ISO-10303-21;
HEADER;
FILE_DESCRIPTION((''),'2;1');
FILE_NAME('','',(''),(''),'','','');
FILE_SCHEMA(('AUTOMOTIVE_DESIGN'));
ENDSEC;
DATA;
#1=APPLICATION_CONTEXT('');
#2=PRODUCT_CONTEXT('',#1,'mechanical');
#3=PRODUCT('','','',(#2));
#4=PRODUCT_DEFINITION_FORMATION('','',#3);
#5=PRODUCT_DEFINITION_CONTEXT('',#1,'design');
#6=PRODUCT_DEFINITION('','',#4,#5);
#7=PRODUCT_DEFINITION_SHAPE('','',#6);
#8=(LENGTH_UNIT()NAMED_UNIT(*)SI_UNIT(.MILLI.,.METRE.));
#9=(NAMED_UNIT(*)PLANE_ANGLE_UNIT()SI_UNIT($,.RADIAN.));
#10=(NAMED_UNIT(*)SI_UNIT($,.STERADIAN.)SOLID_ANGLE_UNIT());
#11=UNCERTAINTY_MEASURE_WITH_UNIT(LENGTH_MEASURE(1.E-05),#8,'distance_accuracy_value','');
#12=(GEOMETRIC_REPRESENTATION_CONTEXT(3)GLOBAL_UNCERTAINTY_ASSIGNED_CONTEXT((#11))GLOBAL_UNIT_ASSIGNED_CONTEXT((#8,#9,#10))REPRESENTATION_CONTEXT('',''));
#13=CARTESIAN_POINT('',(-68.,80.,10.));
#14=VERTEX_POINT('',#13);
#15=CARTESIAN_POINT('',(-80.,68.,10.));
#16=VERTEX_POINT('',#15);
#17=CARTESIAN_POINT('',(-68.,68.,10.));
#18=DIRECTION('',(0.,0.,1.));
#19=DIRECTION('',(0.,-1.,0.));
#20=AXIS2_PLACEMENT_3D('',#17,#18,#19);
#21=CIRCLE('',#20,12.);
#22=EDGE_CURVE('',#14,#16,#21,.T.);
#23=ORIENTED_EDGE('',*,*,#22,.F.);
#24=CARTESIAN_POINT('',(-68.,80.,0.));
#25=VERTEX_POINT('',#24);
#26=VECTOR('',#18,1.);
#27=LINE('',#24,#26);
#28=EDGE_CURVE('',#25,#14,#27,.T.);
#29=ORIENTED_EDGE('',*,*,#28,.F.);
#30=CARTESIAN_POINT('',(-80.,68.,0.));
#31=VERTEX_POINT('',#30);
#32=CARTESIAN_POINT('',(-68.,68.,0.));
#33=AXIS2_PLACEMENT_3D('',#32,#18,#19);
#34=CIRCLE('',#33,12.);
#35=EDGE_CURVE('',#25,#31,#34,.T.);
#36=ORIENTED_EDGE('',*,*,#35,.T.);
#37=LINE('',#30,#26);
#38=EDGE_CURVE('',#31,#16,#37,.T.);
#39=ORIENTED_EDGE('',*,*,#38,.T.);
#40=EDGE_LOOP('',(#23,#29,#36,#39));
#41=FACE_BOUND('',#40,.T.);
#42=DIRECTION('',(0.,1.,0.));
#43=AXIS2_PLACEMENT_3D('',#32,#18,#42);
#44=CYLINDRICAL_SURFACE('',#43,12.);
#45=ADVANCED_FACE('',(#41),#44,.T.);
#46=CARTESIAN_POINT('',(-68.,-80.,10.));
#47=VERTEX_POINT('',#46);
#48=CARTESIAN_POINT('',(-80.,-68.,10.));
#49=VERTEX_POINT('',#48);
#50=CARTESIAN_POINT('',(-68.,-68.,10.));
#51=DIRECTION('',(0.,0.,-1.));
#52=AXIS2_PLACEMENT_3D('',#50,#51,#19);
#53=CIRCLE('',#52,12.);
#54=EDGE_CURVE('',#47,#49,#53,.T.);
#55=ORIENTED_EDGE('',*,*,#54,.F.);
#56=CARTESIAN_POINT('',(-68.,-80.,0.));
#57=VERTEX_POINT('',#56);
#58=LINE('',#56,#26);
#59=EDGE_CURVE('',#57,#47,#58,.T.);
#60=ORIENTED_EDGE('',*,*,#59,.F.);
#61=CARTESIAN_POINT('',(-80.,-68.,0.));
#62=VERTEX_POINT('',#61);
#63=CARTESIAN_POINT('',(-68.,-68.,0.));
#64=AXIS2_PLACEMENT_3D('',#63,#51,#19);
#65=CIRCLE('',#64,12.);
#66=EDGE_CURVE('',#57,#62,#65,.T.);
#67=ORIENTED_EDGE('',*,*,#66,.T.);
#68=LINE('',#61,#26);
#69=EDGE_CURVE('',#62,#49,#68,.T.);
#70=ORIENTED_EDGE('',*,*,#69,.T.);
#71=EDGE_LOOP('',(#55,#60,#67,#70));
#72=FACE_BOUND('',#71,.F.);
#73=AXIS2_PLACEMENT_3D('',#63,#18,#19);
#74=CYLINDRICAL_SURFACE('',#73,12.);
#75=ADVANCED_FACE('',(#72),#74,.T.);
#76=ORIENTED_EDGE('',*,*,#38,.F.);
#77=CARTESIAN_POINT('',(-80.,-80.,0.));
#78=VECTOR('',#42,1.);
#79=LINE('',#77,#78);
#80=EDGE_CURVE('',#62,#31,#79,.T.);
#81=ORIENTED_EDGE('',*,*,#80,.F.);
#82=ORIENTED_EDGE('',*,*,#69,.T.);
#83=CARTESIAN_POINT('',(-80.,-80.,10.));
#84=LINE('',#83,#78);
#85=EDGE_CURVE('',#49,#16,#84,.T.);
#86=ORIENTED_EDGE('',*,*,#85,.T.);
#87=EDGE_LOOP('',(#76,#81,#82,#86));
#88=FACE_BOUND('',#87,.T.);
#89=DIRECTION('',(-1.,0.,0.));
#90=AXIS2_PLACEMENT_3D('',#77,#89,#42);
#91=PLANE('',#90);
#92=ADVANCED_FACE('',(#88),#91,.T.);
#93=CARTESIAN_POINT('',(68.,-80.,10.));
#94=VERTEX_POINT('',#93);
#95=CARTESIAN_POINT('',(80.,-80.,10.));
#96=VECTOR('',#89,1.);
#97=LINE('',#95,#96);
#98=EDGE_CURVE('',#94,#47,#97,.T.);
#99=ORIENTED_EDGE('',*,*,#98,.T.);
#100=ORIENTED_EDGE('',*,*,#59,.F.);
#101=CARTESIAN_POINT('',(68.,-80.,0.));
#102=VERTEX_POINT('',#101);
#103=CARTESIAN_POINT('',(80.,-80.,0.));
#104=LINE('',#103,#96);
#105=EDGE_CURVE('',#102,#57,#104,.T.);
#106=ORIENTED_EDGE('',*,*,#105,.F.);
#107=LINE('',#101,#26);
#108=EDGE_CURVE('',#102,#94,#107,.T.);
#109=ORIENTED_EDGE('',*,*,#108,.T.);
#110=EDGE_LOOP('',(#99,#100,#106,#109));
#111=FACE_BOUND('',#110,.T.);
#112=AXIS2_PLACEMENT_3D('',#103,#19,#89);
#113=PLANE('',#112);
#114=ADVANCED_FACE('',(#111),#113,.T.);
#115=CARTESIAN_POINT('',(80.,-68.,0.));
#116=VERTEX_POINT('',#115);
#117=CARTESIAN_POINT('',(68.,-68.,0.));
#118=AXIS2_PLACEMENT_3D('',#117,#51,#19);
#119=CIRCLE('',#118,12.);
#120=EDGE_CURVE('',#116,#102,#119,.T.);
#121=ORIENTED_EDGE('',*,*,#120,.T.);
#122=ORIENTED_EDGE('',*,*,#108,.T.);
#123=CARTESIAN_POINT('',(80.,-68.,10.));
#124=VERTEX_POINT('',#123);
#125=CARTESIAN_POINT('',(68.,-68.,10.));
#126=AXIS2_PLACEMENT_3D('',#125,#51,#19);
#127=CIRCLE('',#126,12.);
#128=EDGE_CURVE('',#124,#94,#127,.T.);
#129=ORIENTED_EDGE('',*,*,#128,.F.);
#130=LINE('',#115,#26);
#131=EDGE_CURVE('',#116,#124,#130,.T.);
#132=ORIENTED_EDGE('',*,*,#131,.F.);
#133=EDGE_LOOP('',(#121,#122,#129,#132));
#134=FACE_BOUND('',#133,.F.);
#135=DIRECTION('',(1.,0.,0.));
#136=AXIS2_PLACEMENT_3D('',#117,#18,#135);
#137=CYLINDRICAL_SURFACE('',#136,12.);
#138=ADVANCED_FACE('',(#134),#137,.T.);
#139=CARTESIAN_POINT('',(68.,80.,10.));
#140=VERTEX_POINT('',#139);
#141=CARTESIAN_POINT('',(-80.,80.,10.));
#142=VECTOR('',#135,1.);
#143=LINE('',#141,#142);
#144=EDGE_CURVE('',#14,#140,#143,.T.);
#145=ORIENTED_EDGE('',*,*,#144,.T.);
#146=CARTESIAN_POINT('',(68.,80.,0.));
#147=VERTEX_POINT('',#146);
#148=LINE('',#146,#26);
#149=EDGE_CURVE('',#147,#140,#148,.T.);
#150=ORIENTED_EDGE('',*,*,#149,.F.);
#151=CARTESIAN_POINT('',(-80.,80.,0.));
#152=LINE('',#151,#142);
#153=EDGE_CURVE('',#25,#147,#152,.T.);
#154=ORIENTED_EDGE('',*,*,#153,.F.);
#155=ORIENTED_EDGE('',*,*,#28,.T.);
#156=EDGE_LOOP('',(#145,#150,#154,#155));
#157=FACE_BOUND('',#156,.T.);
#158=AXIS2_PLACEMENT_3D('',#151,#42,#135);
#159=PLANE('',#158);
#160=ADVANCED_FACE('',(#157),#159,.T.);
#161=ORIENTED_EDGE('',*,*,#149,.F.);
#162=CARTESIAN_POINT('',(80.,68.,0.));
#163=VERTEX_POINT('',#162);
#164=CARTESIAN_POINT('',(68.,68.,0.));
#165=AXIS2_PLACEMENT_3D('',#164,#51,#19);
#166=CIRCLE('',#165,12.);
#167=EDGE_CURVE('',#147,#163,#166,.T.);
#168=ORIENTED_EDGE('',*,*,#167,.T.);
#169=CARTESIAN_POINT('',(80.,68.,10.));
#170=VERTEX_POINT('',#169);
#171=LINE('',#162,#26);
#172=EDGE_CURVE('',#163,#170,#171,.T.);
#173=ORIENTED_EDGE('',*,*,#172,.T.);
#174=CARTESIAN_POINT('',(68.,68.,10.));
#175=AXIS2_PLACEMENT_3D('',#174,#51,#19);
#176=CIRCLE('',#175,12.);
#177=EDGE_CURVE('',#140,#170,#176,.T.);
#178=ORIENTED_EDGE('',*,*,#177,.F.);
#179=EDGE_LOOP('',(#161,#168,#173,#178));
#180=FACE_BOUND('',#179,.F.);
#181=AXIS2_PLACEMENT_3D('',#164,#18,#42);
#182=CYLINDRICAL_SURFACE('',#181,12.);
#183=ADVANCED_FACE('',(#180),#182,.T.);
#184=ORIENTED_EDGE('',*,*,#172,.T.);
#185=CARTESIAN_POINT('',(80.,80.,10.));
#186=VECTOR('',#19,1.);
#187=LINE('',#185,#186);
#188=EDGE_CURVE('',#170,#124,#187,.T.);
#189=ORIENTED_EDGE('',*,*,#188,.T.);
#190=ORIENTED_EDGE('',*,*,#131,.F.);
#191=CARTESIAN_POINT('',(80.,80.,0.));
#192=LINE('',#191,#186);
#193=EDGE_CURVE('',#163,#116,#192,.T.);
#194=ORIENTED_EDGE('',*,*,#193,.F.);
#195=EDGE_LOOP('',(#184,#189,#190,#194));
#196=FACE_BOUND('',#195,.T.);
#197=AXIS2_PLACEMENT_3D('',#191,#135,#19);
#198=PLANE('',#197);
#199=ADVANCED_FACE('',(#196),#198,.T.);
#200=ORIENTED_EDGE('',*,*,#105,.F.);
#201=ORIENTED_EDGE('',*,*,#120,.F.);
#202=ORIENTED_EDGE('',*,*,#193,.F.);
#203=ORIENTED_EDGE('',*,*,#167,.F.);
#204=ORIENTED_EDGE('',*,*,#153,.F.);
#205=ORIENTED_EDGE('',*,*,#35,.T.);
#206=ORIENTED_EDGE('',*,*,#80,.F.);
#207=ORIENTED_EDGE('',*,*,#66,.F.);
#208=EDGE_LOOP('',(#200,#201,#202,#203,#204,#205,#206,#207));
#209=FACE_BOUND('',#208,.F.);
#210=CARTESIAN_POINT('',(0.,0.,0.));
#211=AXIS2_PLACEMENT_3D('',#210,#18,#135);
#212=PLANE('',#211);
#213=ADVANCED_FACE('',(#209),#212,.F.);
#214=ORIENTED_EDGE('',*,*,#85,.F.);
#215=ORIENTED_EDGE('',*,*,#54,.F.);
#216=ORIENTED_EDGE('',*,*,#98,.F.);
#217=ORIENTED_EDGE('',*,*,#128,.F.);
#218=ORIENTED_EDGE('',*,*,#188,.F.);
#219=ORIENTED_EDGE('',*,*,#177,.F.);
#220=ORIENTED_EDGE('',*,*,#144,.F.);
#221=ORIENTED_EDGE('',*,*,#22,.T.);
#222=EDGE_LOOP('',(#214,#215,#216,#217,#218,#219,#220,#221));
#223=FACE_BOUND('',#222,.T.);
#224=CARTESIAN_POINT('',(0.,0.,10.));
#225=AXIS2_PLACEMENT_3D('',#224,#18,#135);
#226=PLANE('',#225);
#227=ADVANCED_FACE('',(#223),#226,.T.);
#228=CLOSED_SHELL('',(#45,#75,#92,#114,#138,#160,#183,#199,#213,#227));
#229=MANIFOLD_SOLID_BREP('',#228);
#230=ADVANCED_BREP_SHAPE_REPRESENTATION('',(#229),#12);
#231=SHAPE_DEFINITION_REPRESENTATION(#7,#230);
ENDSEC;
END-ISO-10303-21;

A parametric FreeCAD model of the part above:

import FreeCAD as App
import Part
import Sketcher


def edges_at(feature, points):
    """Names of the edges that pass closest to the given points."""
    edges = feature.Shape.Edges
    near = lambda p: min(range(len(edges)), key=lambda i: edges[i].distToShape(Part.Vertex(*p))[0])
    return sorted({f"Edge{near(p) + 1}" for p in points})


def add_polygon(sketch, points):
    """Adds a closed chain of lines whose ends are joined by coincident constraints."""
    first, n = sketch.GeometryCount, len(points)
    for a, b in zip(points, points[1:] + points[:1]):
        sketch.addGeometry(Part.LineSegment(App.Vector(*a, 0), App.Vector(*b, 0)), False)
    for i in range(n):
        sketch.addConstraint(Sketcher.Constraint("Coincident", first + i, 2, first + (i + 1) % n, 1))

doc = App.newDocument("Part")
body = doc.addObject("PartDesign::Body", "Body")

sketch1 = doc.addObject("Sketcher::SketchObject", "Sketch")
body.addObject(sketch1)
sketch1.AttachmentSupport = (doc.XY_Plane, [""])
sketch1.MapMode = "FlatFace"
add_polygon(sketch1, [(80, 80), (-80, 80), (-80, -80), (80, -80)])
sketch1.addConstraint(Sketcher.Constraint("Horizontal", 0))
sketch1.addConstraint(Sketcher.Constraint("Vertical", 1))
sketch1.addConstraint(Sketcher.Constraint("Horizontal", 2))
sketch1.addConstraint(Sketcher.Constraint("Vertical", 3))
sketch1.addConstraint(Sketcher.Constraint("Symmetric", 0, 2, 2, 2, -1, 1))
sketch1.addConstraint(Sketcher.Constraint("Equal", 2, 1))
sketch1.addConstraint(Sketcher.Constraint("DistanceX", 0, 2, 0, 1, 160.0))
pad1 = doc.addObject("PartDesign::Pad", "Pad")
body.addObject(pad1)
pad1.Profile = sketch1
pad1.Length = 10
doc.recompute()

fillet = doc.addObject("PartDesign::Fillet", "Fillet")
body.addObject(fillet)
fillet.Base = (pad1, edges_at(pad1, [
    (80, 80, 5),
    (-80, 80, 5),
    (80, -80, 5),
    (-80, -80, 5),
]))
fillet.Radius = 12

doc.recompute()
